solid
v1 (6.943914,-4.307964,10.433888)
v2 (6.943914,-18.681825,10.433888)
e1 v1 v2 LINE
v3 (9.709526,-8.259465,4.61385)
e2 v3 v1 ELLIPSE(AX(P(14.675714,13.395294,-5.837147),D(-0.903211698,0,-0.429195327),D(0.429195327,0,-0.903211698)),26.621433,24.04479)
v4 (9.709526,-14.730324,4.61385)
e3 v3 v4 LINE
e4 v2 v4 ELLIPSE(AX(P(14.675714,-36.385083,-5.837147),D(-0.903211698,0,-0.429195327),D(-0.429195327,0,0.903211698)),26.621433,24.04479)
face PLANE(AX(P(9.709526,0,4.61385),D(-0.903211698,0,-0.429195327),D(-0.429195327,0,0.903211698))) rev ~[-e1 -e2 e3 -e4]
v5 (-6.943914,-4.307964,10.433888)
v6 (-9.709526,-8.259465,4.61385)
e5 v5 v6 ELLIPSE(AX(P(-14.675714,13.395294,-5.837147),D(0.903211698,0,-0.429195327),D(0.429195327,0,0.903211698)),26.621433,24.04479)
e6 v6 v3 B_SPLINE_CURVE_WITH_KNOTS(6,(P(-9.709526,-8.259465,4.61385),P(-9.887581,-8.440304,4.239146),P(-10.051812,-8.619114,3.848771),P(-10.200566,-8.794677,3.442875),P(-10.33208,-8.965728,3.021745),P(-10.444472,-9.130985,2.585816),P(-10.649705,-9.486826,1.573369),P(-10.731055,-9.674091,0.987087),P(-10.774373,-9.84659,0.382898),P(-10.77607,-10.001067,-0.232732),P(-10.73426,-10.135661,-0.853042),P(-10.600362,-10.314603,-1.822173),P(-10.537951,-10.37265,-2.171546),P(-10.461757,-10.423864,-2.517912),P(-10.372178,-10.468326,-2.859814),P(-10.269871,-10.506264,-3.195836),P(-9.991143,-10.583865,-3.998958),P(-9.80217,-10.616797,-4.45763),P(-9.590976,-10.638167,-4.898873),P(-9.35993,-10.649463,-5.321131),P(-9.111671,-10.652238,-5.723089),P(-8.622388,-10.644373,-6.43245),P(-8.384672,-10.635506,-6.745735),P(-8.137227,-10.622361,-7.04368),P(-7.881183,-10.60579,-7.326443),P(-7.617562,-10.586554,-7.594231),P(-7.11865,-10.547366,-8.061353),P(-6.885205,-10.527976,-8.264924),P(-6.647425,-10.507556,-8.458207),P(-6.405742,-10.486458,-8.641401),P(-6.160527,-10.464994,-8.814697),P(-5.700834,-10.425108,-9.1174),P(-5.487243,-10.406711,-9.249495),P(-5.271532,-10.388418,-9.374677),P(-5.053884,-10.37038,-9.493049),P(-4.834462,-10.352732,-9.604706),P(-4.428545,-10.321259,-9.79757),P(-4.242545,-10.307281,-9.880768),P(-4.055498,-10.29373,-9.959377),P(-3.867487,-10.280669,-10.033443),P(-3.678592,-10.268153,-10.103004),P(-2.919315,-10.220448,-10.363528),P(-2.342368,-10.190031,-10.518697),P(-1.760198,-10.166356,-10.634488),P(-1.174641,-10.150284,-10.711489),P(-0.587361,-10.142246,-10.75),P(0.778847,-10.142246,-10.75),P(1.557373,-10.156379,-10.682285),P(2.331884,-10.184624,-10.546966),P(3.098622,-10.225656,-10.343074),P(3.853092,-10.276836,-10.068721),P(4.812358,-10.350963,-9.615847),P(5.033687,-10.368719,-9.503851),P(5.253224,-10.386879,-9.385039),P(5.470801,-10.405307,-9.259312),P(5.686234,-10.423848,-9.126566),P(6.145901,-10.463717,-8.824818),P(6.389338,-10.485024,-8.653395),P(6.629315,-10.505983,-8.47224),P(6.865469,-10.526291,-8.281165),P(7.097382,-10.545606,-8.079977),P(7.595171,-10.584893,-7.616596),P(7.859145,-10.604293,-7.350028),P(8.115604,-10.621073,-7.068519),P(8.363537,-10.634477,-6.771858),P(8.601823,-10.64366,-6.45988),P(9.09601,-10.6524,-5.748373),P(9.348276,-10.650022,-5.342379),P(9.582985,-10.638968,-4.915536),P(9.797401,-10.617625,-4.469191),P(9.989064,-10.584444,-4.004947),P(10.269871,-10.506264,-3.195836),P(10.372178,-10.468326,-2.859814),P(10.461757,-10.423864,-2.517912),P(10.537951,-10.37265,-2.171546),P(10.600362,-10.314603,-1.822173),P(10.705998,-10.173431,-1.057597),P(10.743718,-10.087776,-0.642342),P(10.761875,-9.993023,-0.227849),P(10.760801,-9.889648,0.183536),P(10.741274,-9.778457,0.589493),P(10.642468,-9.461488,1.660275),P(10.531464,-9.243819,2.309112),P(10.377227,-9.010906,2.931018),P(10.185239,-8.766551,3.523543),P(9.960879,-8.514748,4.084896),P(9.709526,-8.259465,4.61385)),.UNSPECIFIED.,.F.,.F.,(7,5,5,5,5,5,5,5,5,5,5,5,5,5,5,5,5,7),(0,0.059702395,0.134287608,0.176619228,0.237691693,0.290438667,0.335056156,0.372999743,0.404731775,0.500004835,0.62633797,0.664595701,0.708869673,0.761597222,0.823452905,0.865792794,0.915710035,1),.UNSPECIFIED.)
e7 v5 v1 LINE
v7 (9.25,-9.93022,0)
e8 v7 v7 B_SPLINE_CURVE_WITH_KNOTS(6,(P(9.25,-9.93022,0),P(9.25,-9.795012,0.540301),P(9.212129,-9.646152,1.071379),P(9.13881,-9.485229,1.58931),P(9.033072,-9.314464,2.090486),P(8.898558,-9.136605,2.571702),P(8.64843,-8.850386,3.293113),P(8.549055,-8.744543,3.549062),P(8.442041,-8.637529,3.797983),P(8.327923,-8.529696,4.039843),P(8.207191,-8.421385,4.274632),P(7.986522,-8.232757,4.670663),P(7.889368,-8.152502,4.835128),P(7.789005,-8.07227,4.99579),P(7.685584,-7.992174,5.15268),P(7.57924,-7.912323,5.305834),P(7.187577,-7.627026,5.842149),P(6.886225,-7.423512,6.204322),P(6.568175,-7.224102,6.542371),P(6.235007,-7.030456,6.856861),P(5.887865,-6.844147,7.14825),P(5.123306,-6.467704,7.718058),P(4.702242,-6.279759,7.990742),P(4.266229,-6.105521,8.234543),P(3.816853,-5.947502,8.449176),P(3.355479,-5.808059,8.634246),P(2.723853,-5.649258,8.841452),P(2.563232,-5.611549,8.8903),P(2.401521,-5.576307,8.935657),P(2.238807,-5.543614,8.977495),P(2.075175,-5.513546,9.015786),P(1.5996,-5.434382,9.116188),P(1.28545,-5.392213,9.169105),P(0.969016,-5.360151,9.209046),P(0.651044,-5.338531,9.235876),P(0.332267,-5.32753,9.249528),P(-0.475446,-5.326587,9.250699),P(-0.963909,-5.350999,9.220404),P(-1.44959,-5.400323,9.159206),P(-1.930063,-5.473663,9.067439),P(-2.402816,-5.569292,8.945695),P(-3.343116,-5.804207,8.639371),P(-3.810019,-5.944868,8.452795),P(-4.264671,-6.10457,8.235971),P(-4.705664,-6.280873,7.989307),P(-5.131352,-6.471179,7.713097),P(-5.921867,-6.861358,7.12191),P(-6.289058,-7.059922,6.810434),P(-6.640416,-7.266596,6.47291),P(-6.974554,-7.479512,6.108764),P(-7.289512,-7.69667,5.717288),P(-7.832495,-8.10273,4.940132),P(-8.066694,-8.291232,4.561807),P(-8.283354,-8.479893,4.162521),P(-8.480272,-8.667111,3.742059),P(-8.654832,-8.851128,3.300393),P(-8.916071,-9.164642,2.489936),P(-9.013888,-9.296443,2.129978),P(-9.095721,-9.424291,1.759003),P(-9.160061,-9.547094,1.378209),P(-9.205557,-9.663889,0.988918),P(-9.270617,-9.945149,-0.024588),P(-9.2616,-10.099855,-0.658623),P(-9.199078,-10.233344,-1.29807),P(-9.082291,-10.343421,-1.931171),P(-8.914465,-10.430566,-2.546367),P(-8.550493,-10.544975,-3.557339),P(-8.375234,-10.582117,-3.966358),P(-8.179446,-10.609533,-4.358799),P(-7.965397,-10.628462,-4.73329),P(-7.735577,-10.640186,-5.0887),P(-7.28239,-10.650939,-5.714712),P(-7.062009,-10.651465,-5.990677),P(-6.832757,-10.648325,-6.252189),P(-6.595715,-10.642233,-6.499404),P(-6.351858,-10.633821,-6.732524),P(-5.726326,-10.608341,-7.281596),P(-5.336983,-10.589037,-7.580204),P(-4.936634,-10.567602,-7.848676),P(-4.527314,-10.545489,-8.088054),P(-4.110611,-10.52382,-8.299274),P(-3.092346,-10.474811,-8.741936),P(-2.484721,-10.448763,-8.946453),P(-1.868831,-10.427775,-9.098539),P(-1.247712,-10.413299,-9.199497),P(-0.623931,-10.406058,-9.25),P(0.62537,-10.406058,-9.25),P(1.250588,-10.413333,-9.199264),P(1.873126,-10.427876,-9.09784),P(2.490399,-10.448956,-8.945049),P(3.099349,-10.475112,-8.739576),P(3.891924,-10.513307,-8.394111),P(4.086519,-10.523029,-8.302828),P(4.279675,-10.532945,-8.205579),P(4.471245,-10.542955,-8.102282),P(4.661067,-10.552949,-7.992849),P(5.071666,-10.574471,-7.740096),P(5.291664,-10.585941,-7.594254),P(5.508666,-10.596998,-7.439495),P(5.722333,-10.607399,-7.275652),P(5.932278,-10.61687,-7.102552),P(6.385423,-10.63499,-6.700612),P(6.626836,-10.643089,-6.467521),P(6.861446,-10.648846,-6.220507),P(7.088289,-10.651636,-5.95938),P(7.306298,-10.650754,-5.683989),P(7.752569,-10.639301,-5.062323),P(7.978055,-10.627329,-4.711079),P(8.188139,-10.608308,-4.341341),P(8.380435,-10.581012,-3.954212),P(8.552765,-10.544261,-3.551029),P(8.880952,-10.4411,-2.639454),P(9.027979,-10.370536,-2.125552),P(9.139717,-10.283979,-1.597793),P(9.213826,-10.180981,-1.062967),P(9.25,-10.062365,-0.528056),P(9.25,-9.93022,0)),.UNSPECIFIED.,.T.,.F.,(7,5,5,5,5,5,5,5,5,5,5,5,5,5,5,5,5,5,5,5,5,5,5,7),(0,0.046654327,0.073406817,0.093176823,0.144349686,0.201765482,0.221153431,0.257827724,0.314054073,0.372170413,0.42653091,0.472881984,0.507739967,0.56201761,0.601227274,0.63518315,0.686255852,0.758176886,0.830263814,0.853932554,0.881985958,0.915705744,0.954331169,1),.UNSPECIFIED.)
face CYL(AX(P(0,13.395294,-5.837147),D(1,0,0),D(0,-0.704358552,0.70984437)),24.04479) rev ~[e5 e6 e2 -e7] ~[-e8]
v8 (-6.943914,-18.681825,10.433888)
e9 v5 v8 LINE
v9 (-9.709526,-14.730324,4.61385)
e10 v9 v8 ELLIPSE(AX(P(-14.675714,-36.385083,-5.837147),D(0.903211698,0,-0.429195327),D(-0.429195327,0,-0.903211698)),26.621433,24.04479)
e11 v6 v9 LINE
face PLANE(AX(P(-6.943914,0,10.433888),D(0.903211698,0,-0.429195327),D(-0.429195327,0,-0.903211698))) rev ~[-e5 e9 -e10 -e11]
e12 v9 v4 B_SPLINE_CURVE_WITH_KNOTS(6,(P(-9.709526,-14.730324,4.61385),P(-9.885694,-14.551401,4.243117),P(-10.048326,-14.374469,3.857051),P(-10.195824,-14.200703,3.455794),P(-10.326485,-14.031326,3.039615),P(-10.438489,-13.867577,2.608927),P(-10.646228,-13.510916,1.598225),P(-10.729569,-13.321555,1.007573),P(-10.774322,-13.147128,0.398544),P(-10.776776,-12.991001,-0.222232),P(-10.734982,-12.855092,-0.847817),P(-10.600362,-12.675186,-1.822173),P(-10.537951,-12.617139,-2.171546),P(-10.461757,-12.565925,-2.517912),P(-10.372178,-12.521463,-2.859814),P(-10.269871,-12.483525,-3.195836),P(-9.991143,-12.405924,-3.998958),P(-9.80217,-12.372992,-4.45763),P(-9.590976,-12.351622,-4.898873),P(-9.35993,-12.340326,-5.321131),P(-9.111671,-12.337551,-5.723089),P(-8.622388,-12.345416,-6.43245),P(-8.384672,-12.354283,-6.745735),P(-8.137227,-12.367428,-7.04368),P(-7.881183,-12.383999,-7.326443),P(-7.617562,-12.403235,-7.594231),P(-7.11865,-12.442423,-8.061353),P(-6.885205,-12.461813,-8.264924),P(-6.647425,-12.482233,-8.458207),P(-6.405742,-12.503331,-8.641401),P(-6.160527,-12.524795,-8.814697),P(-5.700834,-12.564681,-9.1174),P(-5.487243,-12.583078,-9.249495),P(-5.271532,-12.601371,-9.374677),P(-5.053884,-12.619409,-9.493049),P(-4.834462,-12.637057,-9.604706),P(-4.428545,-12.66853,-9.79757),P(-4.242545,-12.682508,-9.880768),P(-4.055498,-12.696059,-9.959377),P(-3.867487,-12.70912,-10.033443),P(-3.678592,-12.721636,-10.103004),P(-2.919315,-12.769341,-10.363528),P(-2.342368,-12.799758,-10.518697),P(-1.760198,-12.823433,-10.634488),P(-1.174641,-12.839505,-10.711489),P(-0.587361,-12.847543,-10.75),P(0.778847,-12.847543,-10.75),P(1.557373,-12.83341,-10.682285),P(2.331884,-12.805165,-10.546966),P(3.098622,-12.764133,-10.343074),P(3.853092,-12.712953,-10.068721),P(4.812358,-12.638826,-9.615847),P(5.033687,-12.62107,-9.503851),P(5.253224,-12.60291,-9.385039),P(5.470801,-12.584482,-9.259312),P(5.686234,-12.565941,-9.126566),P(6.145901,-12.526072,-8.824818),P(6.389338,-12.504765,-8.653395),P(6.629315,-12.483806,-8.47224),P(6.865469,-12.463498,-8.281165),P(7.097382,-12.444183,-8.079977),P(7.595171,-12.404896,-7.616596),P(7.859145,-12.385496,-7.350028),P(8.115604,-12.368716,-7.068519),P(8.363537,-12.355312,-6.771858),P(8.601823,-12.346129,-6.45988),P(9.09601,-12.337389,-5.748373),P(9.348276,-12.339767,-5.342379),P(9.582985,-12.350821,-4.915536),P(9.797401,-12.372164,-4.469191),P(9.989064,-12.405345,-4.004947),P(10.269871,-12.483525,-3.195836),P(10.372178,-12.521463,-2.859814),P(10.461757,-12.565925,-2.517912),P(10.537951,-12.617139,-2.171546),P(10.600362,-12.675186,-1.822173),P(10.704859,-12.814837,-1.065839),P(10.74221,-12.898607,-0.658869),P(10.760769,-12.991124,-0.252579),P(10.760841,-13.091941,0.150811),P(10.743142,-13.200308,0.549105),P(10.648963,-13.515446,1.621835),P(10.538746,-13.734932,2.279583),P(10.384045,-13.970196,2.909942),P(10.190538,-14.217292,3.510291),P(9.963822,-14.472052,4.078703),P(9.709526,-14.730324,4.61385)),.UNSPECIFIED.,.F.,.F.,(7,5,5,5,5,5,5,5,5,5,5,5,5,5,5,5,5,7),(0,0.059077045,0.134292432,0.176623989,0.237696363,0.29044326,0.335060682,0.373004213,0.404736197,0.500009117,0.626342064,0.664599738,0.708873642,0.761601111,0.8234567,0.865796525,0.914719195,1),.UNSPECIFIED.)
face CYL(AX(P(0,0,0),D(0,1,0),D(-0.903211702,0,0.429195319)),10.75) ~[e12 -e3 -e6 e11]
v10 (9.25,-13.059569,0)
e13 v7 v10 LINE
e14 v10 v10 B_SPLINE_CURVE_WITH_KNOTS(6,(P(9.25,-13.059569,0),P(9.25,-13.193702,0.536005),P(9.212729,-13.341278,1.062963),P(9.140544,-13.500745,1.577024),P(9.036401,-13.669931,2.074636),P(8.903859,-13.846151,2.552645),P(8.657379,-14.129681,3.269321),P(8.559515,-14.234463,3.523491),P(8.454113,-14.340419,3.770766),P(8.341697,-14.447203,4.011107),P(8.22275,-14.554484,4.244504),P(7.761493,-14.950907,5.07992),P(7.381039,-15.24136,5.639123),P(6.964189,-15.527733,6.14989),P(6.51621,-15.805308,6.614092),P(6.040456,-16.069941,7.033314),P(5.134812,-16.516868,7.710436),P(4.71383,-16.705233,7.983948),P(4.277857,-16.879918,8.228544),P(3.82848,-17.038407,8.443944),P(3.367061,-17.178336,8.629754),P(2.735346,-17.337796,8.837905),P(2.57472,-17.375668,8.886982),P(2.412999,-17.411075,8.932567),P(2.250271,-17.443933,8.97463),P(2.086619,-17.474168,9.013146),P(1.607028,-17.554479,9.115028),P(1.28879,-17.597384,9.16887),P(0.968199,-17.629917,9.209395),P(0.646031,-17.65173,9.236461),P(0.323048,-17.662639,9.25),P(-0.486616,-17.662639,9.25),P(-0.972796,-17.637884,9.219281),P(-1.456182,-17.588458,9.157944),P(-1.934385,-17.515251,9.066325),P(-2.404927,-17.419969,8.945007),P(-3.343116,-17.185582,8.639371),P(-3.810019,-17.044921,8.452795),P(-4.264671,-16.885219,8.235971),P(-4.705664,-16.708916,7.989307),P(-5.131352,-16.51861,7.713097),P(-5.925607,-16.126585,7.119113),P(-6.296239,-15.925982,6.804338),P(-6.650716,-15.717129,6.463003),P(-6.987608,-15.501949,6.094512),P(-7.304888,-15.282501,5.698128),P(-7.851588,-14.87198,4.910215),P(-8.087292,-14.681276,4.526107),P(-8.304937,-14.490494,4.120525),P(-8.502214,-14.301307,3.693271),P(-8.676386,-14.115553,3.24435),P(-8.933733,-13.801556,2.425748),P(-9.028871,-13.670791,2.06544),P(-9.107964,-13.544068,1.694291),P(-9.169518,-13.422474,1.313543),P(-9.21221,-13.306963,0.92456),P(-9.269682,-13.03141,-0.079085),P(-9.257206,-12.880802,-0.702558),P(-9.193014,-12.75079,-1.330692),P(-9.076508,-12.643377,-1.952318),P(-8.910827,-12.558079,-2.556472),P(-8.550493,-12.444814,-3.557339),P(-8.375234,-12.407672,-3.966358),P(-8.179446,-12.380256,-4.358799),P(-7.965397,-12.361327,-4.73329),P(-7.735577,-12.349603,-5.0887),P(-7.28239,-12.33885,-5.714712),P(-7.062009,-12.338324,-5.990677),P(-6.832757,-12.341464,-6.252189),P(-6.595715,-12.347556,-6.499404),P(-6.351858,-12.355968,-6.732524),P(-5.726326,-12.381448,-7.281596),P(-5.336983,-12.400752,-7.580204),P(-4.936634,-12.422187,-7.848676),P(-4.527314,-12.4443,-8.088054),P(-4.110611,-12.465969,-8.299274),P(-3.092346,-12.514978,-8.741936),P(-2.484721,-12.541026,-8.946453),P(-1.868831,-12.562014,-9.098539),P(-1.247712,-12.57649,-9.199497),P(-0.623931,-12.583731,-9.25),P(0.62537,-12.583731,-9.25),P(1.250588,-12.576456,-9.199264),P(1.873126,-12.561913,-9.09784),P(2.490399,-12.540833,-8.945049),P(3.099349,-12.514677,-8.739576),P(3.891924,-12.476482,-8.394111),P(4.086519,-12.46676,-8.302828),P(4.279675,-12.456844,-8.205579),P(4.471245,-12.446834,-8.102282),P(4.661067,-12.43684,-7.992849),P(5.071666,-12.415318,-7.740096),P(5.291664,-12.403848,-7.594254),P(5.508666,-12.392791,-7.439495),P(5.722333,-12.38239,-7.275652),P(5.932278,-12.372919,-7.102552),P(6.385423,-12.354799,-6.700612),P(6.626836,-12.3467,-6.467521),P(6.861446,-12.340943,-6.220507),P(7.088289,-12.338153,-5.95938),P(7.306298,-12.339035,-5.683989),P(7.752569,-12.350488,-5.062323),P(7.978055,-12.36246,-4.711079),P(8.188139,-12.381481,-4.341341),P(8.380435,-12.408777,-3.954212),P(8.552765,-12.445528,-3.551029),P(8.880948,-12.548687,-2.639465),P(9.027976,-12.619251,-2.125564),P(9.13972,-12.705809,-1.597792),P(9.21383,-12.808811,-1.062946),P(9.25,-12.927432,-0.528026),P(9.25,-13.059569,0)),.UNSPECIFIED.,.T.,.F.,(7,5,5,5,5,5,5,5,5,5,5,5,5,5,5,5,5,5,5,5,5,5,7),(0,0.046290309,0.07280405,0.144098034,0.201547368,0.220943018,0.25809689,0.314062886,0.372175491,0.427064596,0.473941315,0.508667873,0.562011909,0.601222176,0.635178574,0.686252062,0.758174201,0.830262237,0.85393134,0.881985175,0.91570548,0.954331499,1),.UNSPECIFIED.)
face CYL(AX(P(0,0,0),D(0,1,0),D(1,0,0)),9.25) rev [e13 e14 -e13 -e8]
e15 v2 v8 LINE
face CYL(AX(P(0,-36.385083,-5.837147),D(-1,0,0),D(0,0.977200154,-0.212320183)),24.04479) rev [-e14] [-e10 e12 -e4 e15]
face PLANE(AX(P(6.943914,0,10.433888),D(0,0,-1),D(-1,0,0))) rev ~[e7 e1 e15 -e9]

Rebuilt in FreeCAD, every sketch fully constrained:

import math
import FreeCAD as App
import Part
import Sketcher

V = App.Vector

doc = App.newDocument("Part")
body = doc.addObject("PartDesign::Body", "Body")

# Sketch on XZ plane
sketch1 = doc.addObject("Sketcher::SketchObject", "Sketch")
body.addObject(sketch1)
sketch1.AttachmentSupport = (doc.XZ_Plane, [""])
sketch1.MapMode = "FlatFace"
sketch1.addGeometry(Part.LineSegment(V(-7, 10, 0), V(-10, 5, 0)), False)
sketch1.addGeometry(Part.ArcOfCircle(Part.Circle(V(0, 0, 0), V(0, 0, 1), 11), math.radians(155), math.radians(385)), False)
sketch1.addGeometry(Part.LineSegment(V(10, 5, 0), V(7, 10, 0)), False)
sketch1.addGeometry(Part.LineSegment(V(7, 10, 0), V(-7, 10, 0)), False)
sketch1.addGeometry(Part.Circle(V(0, 0, 0), V(0, 0, 1), 9), False)
sketch1.addConstraint(Sketcher.Constraint("Tangent", 0, 2, 1, 1))
sketch1.addConstraint(Sketcher.Constraint("Tangent", 1, 2, 2, 1))
sketch1.addConstraint(Sketcher.Constraint("Coincident", 2, 2, 3, 1))
sketch1.addConstraint(Sketcher.Constraint("Coincident", 3, 2, 0, 1))
sketch1.addConstraint(Sketcher.Constraint("Horizontal", 3))
sketch1.addConstraint(Sketcher.Constraint("Coincident", 1, 3, -1, 1))
sketch1.addConstraint(Sketcher.Constraint("Coincident", 4, 3, -1, 1))
sketch1.addConstraint(Sketcher.Constraint("Horizontal", 0, 2, 1, 2))
sketch1.addConstraint(Sketcher.Constraint("Diameter", 4, 18.5))
sketch1.addConstraint(Sketcher.Constraint("Radius", 1, 10.75))
sketch1.addConstraint(Sketcher.Constraint("DistanceX", 3, 2, 3, 1, 13.887828))
sketch1.addConstraint(Sketcher.Constraint("DistanceY", -1, 1, 0, 2, 4.61385))
pad1 = doc.addObject("PartDesign::Pad", "Pad")
body.addObject(pad1)
pad1.Profile = sketch1
pad1.Length = 25.4

# Sketch on YZ plane
sketch2 = doc.addObject("Sketcher::SketchObject", "Sketch001")
body.addObject(sketch2)
sketch2.AttachmentSupport = (doc.YZ_Plane, [""])
sketch2.MapMode = "FlatFace"
sketch2.addGeometry(Part.ArcOfCircle(Part.Circle(V(-36, -6, 0), V(0, 0, 1), 24), math.radians(-12), math.radians(45)), False)
sketch2.addGeometry(Part.LineSegment(V(-19, 11, 0), V(-30, 11, 0)), False)
sketch2.addGeometry(Part.LineSegment(V(-30, 11, 0), V(-29, -14, 0)), False)
sketch2.addGeometry(Part.LineSegment(V(-29, -14, 0), V(-13, -11, 0)), False)
sketch2.addGeometry(Part.LineSegment(V(7, 11, 0), V(-4, 11, 0)), False)
sketch2.addGeometry(Part.ArcOfCircle(Part.Circle(V(13, -6, 0), V(0, 0, 1), 24), math.radians(135), math.radians(192)), False)
sketch2.addGeometry(Part.LineSegment(V(-10, -11, 0), V(6, -14, 0)), False)
sketch2.addGeometry(Part.LineSegment(V(6, -14, 0), V(7, 11, 0)), False)
sketch2.addConstraint(Sketcher.Constraint("Coincident", 0, 2, 1, 1))
sketch2.addConstraint(Sketcher.Constraint("Coincident", 1, 2, 2, 1))
sketch2.addConstraint(Sketcher.Constraint("Coincident", 2, 2, 3, 1))
sketch2.addConstraint(Sketcher.Constraint("Coincident", 3, 2, 0, 1))
sketch2.addConstraint(Sketcher.Constraint("Coincident", 4, 2, 5, 1))
sketch2.addConstraint(Sketcher.Constraint("Coincident", 5, 2, 6, 1))
sketch2.addConstraint(Sketcher.Constraint("Coincident", 6, 2, 7, 1))
sketch2.addConstraint(Sketcher.Constraint("Coincident", 7, 2, 4, 1))
sketch2.addConstraint(Sketcher.Constraint("Horizontal", 1))
sketch2.addConstraint(Sketcher.Constraint("Horizontal", 4))
sketch2.addConstraint(Sketcher.Constraint("Equal", 0, 5))
sketch2.addConstraint(Sketcher.Constraint("Horizontal", 0, 3, 5, 3))
sketch2.addConstraint(Sketcher.Constraint("Horizontal", 1, 2, 4, 2))
sketch2.addConstraint(Sketcher.Constraint("Horizontal", 3, 2, 5, 2))
sketch2.addConstraint(Sketcher.Constraint("Horizontal", 2, 2, 6, 2))
sketch2.addConstraint(Sketcher.Constraint("Equal", 1, 4))
sketch2.addConstraint(Sketcher.Constraint("Equal", 3, 6))
sketch2.addConstraint(Sketcher.Constraint("Radius", 0, 24.04479))
sketch2.addConstraint(Sketcher.Constraint("Distance", 3, 16.321751))
sketch2.addConstraint(Sketcher.Constraint("DistanceX", 1, 2, 1, 1, 10.447325))
sketch2.addConstraint(Sketcher.Constraint("DistanceX", 0, 2, -1, 1, 19.44893))
sketch2.addConstraint(Sketcher.Constraint("DistanceY", -1, 1, 0, 2, 11.230912))
sketch2.addConstraint(Sketcher.Constraint("DistanceY", 2, 2, -1, 1, 13.811551))
sketch2.addConstraint(Sketcher.Constraint("DistanceX", 3, 2, -1, 1, 12.888511))
sketch2.addConstraint(Sketcher.Constraint("DistanceY", 3, 2, -1, 1, 10.942341))
sketch2.addConstraint(Sketcher.Constraint("DistanceX", 4, 2, -1, 1, 3.540859))
pocket1 = doc.addObject("PartDesign::Pocket", "Pocket")
body.addObject(pocket1)
pocket1.Profile = sketch2
pocket1.Length = 25.4
pocket1.Midplane = True

doc.recompute()
